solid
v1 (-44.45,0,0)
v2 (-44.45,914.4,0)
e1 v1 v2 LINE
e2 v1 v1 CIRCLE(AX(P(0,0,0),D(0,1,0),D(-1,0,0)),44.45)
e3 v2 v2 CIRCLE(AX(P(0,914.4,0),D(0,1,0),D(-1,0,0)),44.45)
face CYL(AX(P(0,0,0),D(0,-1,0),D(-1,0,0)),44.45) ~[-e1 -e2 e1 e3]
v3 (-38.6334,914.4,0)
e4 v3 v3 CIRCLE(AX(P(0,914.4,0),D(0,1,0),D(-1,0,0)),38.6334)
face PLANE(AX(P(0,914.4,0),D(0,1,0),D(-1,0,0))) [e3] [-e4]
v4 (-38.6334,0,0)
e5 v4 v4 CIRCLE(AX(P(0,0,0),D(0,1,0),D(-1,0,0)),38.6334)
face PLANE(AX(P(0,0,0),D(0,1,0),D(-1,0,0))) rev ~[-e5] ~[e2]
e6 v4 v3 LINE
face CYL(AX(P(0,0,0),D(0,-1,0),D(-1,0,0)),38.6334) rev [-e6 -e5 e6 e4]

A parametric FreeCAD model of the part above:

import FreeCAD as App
import Part
import Sketcher
from FreeCAD import Vector
Q = App.Units.Quantity

doc = App.newDocument("Part")
body = doc.addObject("PartDesign::Body", "Body")

sketch1 = body.newObject("Sketcher::SketchObject", "Sketch")
sketch1.AttachmentSupport = (doc.getObject("XZ_Plane"), [""])
sketch1.MapMode = "FlatFace"
sketch1.addGeometry([
    Part.Circle(Vector(0, 0, 0), Vector(0, 0, 1), 44),
    Part.Circle(Vector(0, 0, 0), Vector(0, 0, 1), 39),
], False)
sketch1.addConstraint([
    Sketcher.Constraint("Coincident", 0, 3, -1, 1),
    Sketcher.Constraint("Coincident", 1, 3, -1, 1),
    Sketcher.Constraint("Diameter", 0, Q("3.5 in")),
    Sketcher.Constraint("Diameter", 1, Q("3.042 in")),
])
pad1 = body.newObject("PartDesign::Pad", "Pad")
pad1.Profile = sketch1
pad1.Length = Q("36 in")
pad1.Reversed = True

doc.recompute()
